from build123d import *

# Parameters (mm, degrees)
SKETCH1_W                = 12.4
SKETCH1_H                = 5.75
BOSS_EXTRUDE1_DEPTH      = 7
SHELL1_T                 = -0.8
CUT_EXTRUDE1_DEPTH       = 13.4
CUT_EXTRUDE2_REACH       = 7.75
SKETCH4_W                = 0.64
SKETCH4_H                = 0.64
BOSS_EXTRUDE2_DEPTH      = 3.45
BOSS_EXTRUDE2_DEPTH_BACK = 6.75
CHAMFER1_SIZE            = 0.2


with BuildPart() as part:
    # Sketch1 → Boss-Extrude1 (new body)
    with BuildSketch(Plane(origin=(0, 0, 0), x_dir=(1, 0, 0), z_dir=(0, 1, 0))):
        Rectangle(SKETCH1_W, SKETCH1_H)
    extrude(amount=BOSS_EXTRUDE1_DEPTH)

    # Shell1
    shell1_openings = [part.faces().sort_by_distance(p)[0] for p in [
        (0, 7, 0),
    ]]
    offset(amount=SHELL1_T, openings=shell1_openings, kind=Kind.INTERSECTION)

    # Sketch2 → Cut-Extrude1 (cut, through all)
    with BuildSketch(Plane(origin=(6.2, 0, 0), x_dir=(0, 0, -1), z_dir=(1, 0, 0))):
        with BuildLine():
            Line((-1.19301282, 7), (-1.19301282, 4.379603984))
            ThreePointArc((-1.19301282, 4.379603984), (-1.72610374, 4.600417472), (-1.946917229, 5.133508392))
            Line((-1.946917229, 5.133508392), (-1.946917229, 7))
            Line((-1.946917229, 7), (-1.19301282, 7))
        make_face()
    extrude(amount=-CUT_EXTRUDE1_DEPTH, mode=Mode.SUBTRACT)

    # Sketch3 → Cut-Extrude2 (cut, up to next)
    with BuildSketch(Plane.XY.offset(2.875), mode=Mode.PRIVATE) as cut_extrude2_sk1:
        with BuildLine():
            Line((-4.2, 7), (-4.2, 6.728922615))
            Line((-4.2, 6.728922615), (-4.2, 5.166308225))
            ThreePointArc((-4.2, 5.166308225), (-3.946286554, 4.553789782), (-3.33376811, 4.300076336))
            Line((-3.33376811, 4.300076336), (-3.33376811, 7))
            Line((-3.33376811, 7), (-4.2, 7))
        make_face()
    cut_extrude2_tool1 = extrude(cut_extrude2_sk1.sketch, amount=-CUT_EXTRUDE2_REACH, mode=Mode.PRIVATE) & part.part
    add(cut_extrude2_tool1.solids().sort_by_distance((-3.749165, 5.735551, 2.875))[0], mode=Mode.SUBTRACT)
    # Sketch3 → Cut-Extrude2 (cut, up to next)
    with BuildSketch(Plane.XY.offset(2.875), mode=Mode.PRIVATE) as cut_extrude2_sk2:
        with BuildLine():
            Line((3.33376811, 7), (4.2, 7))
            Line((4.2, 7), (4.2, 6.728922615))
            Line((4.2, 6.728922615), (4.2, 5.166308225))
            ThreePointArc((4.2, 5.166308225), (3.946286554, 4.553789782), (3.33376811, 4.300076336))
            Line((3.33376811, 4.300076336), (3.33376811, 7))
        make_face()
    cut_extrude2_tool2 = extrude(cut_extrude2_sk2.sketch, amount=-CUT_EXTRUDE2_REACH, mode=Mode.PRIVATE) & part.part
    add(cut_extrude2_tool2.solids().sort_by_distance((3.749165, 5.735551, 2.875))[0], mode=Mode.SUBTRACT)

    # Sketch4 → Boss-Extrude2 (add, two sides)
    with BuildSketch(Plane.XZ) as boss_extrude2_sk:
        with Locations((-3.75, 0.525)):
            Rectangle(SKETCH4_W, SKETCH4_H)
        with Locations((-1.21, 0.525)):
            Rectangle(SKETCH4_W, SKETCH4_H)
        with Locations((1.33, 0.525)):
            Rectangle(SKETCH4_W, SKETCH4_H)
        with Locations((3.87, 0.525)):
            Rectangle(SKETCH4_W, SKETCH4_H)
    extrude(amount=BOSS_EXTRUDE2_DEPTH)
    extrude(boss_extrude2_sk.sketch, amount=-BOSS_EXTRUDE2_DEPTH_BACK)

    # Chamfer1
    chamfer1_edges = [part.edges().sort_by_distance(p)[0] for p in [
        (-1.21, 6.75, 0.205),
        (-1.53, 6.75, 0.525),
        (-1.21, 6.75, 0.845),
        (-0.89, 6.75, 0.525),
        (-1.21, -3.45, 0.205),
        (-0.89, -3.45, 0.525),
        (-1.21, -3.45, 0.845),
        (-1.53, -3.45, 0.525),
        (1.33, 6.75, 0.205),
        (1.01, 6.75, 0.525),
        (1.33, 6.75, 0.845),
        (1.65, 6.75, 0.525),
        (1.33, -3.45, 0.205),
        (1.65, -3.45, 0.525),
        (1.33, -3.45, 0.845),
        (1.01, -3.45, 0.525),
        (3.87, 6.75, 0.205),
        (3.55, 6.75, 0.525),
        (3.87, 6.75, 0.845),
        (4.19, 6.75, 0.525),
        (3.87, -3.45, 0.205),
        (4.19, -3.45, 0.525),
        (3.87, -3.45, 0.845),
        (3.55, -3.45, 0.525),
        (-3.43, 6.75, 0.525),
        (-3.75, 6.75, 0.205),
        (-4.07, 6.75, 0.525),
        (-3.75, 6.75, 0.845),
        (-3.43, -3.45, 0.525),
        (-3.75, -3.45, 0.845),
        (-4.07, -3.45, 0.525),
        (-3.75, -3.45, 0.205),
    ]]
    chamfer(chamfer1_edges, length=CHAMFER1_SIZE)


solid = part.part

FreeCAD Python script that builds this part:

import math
import FreeCAD as App
import Part
import Sketcher
Q = App.Units.Quantity


def edges_at(feature, points):
    """Names of the edges that pass closest to the given points."""
    edges = feature.Shape.Edges
    near = lambda p: min(range(len(edges)), key=lambda i: edges[i].distToShape(Part.Vertex(*p))[0])
    return sorted({f"Edge{near(p) + 1}" for p in points})


def faces_at(feature, points):
    """Names of the faces that lie closest to the given points."""
    faces = feature.Shape.Faces
    near = lambda p: min(range(len(faces)), key=lambda i: faces[i].distToShape(Part.Vertex(*p))[0])
    return sorted({f"Face{near(p) + 1}" for p in points})

doc = App.newDocument("Part")
body = doc.addObject("PartDesign::Body", "Body")

sketch1 = body.newObject("Sketcher::SketchObject", "Sketch")
sketch1.AttachmentSupport = (doc.getObject("XZ_Plane"), [""])
sketch1.MapMode = "FlatFace"
sketch1.addGeometry([
    Part.LineSegment(App.Vector(-6, -3, 0), App.Vector(-6, 3, 0)),
    Part.LineSegment(App.Vector(-6, 3, 0), App.Vector(6, 3, 0)),
    Part.LineSegment(App.Vector(6, 3, 0), App.Vector(6, -3, 0)),
    Part.LineSegment(App.Vector(6, -3, 0), App.Vector(-6, -3, 0)),
], False)
sketch1.addConstraint([
    Sketcher.Constraint("Coincident", 0, 2, 1, 1),
    Sketcher.Constraint("Coincident", 1, 2, 2, 1),
    Sketcher.Constraint("Coincident", 2, 2, 3, 1),
    Sketcher.Constraint("Coincident", 3, 2, 0, 1),
    Sketcher.Constraint("Vertical", 0),
    Sketcher.Constraint("Horizontal", 1),
    Sketcher.Constraint("Vertical", 2),
    Sketcher.Constraint("Horizontal", 3),
    Sketcher.Constraint("Symmetric", 0, 2, 2, 2, -1, 1),
    Sketcher.Constraint("DistanceX", 1, 1, 1, 2, Q("12.4 mm")),
    Sketcher.Constraint("DistanceY", 0, 1, 0, 2, Q("5.75 mm")),
])
pad1 = body.newObject("PartDesign::Pad", "Pad")
pad1.Profile = sketch1
pad1.Length = 7
pad1.Reversed = True
doc.recompute()

thickness = body.newObject("PartDesign::Thickness", "Thickness")
thickness.Base = (pad1, faces_at(pad1, [(0, 7, 0)]))
thickness.Value = 0.8
thickness.Reversed = True
thickness.Join = "Intersection"

sketch2 = body.newObject("Sketcher::SketchObject", "Sketch001")
sketch2.AttachmentSupport = (doc.getObject("YZ_Plane"), [""])
sketch2.MapMode = "FlatFace"
sketch2.AttachmentOffset = App.Placement(App.Vector(0, 0, 6.2), App.Rotation())
sketch2.addGeometry([
    Part.LineSegment(App.Vector(4.4, 1.2, 0), App.Vector(7, 1.2, 0)),
    Part.LineSegment(App.Vector(7, 1.2, 0), App.Vector(7, 1.9, 0)),
    Part.LineSegment(App.Vector(7, 1.9, 0), App.Vector(5.1, 1.9, 0)),
    Part.ArcOfCircle(Part.Circle(App.Vector(5.1, 1.2, 0), App.Vector(0, 0, 1), 0.8), math.radians(90), math.radians(180)),
], False)
sketch2.addConstraint([
    Sketcher.Constraint("Coincident", 0, 2, 1, 1),
    Sketcher.Constraint("Coincident", 1, 2, 2, 1),
    Sketcher.Constraint("Tangent", 2, 2, 3, 1),
    Sketcher.Constraint("Coincident", 3, 2, 0, 1),
    Sketcher.Constraint("Horizontal", 0),
    Sketcher.Constraint("Vertical", 1),
    Sketcher.Constraint("Horizontal", 2),
    Sketcher.Constraint("Horizontal", 3, 3, 0, 2),
    Sketcher.Constraint("DistanceX", -1, 1, 0, 2, Q("7 mm")),
    Sketcher.Constraint("Radius", 3, Q("0.753904 mm")),
    Sketcher.Constraint("DistanceX", 2, 2, 2, 1, Q("1.866492 mm")),
    Sketcher.Constraint("DistanceY", -1, 1, 3, 3, Q("1.193013 mm")),
])
pocket1 = body.newObject("PartDesign::Pocket", "Pocket")
pocket1.Profile = sketch2
pocket1.Type = "ThroughAll"

sketch3 = body.newObject("Sketcher::SketchObject", "Sketch002")
sketch3.AttachmentSupport = (doc.getObject("XY_Plane"), [""])
sketch3.MapMode = "FlatFace"
sketch3.AttachmentOffset = App.Placement(App.Vector(0, 0, 2.875), App.Rotation())
sketch3.addGeometry([
    Part.LineSegment(App.Vector(-4.2, 7, 0), App.Vector(-4.2, 5.2, 0)),
    Part.ArcOfCircle(Part.Circle(App.Vector(-3.3, 5.2, 0), App.Vector(0, 0, 1), 0.9), math.radians(180), math.radians(270)),
    Part.LineSegment(App.Vector(-3.3, 4.3, 0), App.Vector(-3.3, 7, 0)),
    Part.LineSegment(App.Vector(-3.3, 7, 0), App.Vector(-4.2, 7, 0)),
], False)
sketch3.addConstraint([
    Sketcher.Constraint("Tangent", 0, 2, 1, 1),
    Sketcher.Constraint("Coincident", 1, 2, 2, 1),
    Sketcher.Constraint("Coincident", 2, 2, 3, 1),
    Sketcher.Constraint("Coincident", 3, 2, 0, 1),
    Sketcher.Constraint("Vertical", 0),
    Sketcher.Constraint("Vertical", 2),
    Sketcher.Constraint("Horizontal", 3),
    Sketcher.Constraint("DistanceY", -1, 1, 2, 2, Q("7 mm")),
    Sketcher.Constraint("DistanceX", 0, 2, -1, 1, Q("4.2 mm")),
    Sketcher.Constraint("Radius", 1, Q("0.866232 mm")),
    Sketcher.Constraint("DistanceX", 3, 2, 3, 1, Q("0.866232 mm")),
    Sketcher.Constraint("DistanceY", 0, 2, 0, 1, Q("1.833692 mm")),
])
pocket2 = body.newObject("PartDesign::Pocket", "Pocket001")
pocket2.Profile = sketch3
pocket2.Type = "UpToFirst"

sketch4 = body.newObject("Sketcher::SketchObject", "Sketch003")
sketch4.AttachmentSupport = (doc.getObject("XY_Plane"), [""])
sketch4.MapMode = "FlatFace"
sketch4.AttachmentOffset = App.Placement(App.Vector(0, 0, 2.875), App.Rotation())
sketch4.addGeometry([
    Part.LineSegment(App.Vector(4.2, 7, 0), App.Vector(3.3, 7, 0)),
    Part.LineSegment(App.Vector(3.3, 7, 0), App.Vector(3.3, 4.3, 0)),
    Part.ArcOfCircle(Part.Circle(App.Vector(3.3, 5.2, 0), App.Vector(0, 0, 1), 0.9), math.radians(-90), math.radians(0)),
    Part.LineSegment(App.Vector(4.2, 5.2, 0), App.Vector(4.2, 7, 0)),
], False)
sketch4.addConstraint([
    Sketcher.Constraint("Coincident", 0, 2, 1, 1),
    Sketcher.Constraint("Coincident", 1, 2, 2, 1),
    Sketcher.Constraint("Tangent", 2, 2, 3, 1),
    Sketcher.Constraint("Coincident", 3, 2, 0, 1),
    Sketcher.Constraint("Horizontal", 0),
    Sketcher.Constraint("Vertical", 1),
    Sketcher.Constraint("Vertical", 3),
    Sketcher.Constraint("Vertical", 2, 3, 0, 2),
    Sketcher.Constraint("DistanceY", -1, 1, 0, 2, Q("7 mm")),
    Sketcher.Constraint("DistanceX", -1, 1, 2, 2, Q("4.2 mm")),
    Sketcher.Constraint("Radius", 2, Q("0.866232 mm")),
    Sketcher.Constraint("DistanceY", 3, 1, 3, 2, Q("1.833692 mm")),
])
pocket3 = body.newObject("PartDesign::Pocket", "Pocket002")
pocket3.Profile = sketch4
pocket3.Type = "UpToFirst"

sketch5 = body.newObject("Sketcher::SketchObject", "Sketch004")
sketch5.AttachmentSupport = (doc.getObject("XZ_Plane"), [""])
sketch5.MapMode = "FlatFace"
sketch5.addGeometry([
    Part.LineSegment(App.Vector(-4.1, 0.8, 0), App.Vector(-4.1, 0.2, 0)),
    Part.LineSegment(App.Vector(-4.1, 0.2, 0), App.Vector(-3.4, 0.2, 0)),
    Part.LineSegment(App.Vector(-3.4, 0.2, 0), App.Vector(-3.4, 0.8, 0)),
    Part.LineSegment(App.Vector(-3.4, 0.8, 0), App.Vector(-4.1, 0.8, 0)),
    Part.LineSegment(App.Vector(-1.5, 0.8, 0), App.Vector(-1.5, 0.2, 0)),
    Part.LineSegment(App.Vector(-1.5, 0.2, 0), App.Vector(-0.9, 0.2, 0)),
    Part.LineSegment(App.Vector(-0.9, 0.2, 0), App.Vector(-0.9, 0.8, 0)),
    Part.LineSegment(App.Vector(-0.9, 0.8, 0), App.Vector(-1.5, 0.8, 0)),
    Part.LineSegment(App.Vector(1, 0.8, 0), App.Vector(1, 0.2, 0)),
    Part.LineSegment(App.Vector(1, 0.2, 0), App.Vector(1.6, 0.2, 0)),
    Part.LineSegment(App.Vector(1.6, 0.2, 0), App.Vector(1.6, 0.8, 0)),
    Part.LineSegment(App.Vector(1.6, 0.8, 0), App.Vector(1, 0.8, 0)),
    Part.LineSegment(App.Vector(3.5, 0.8, 0), App.Vector(3.5, 0.2, 0)),
    Part.LineSegment(App.Vector(3.5, 0.2, 0), App.Vector(4.2, 0.2, 0)),
    Part.LineSegment(App.Vector(4.2, 0.2, 0), App.Vector(4.2, 0.8, 0)),
    Part.LineSegment(App.Vector(4.2, 0.8, 0), App.Vector(3.5, 0.8, 0)),
], False)
sketch5.addConstraint([
    Sketcher.Constraint("Coincident", 0, 2, 1, 1),
    Sketcher.Constraint("Coincident", 1, 2, 2, 1),
    Sketcher.Constraint("Coincident", 2, 2, 3, 1),
    Sketcher.Constraint("Coincident", 3, 2, 0, 1),
    Sketcher.Constraint("Coincident", 4, 2, 5, 1),
    Sketcher.Constraint("Coincident", 5, 2, 6, 1),
    Sketcher.Constraint("Coincident", 6, 2, 7, 1),
    Sketcher.Constraint("Coincident", 7, 2, 4, 1),
    Sketcher.Constraint("Coincident", 8, 2, 9, 1),
    Sketcher.Constraint("Coincident", 9, 2, 10, 1),
    Sketcher.Constraint("Coincident", 10, 2, 11, 1),
    Sketcher.Constraint("Coincident", 11, 2, 8, 1),
    Sketcher.Constraint("Coincident", 12, 2, 13, 1),
    Sketcher.Constraint("Coincident", 13, 2, 14, 1),
    Sketcher.Constraint("Coincident", 14, 2, 15, 1),
    Sketcher.Constraint("Coincident", 15, 2, 12, 1),
    Sketcher.Constraint("Vertical", 0),
    Sketcher.Constraint("Horizontal", 1),
    Sketcher.Constraint("Vertical", 2),
    Sketcher.Constraint("Horizontal", 3),
    Sketcher.Constraint("Vertical", 4),
    Sketcher.Constraint("Horizontal", 5),
    Sketcher.Constraint("Vertical", 6),
    Sketcher.Constraint("Horizontal", 7),
    Sketcher.Constraint("Vertical", 8),
    Sketcher.Constraint("Horizontal", 9),
    Sketcher.Constraint("Vertical", 10),
    Sketcher.Constraint("Horizontal", 11),
    Sketcher.Constraint("Vertical", 12),
    Sketcher.Constraint("Horizontal", 13),
    Sketcher.Constraint("Vertical", 14),
    Sketcher.Constraint("Horizontal", 15),
    Sketcher.Constraint("Horizontal", 1, 2, 4, 2),
    Sketcher.Constraint("Horizontal", 3, 2, 6, 2),
    Sketcher.Constraint("Horizontal", 5, 2, 8, 2),
    Sketcher.Constraint("Horizontal", 7, 2, 10, 2),
    Sketcher.Constraint("Horizontal", 9, 2, 12, 2),
    Sketcher.Constraint("Horizontal", 11, 2, 14, 2),
    Sketcher.Constraint("Equal", 3, 5),
    Sketcher.Constraint("Equal", 7, 9),
    Sketcher.Constraint("Equal", 11, 13),
    Sketcher.Constraint("Equal", 15, 0),
    Sketcher.Constraint("DistanceX", 1, 1, 1, 2, Q("0.64 mm")),
    Sketcher.Constraint("DistanceX", 1, 2, 4, 2, Q("1.9 mm")),
    Sketcher.Constraint("DistanceX", 5, 2, 8, 2, Q("1.9 mm")),
    Sketcher.Constraint("DistanceX", 9, 2, 12, 2, Q("1.9 mm")),
    Sketcher.Constraint("DistanceX", 0, 2, -1, 1, Q("4.07 mm")),
    Sketcher.Constraint("DistanceY", -1, 1, 0, 2, Q("0.205 mm")),
])
pad2 = body.newObject("PartDesign::Pad", "Pad001")
pad2.Profile = sketch5
pad2.Type = "TwoLengths"
pad2.Length = 3.45
pad2.Length2 = 6.75
doc.recompute()

chamfer = body.newObject("PartDesign::Chamfer", "Chamfer")
chamfer.Base = (pad2, edges_at(pad2, [
    (-1.21, 6.75, 0.205),
    (-1.53, 6.75, 0.525),
    (-1.21, 6.75, 0.845),
    (-0.89, 6.75, 0.525),
    (-1.21, -3.45, 0.205),
    (-0.89, -3.45, 0.525),
    (-1.21, -3.45, 0.845),
    (-1.53, -3.45, 0.525),
    (1.33, 6.75, 0.205),
    (1.01, 6.75, 0.525),
    (1.33, 6.75, 0.845),
    (1.65, 6.75, 0.525),
    (1.33, -3.45, 0.205),
    (1.65, -3.45, 0.525),
    (1.33, -3.45, 0.845),
    (1.01, -3.45, 0.525),
    (3.87, 6.75, 0.205),
    (3.55, 6.75, 0.525),
    (3.87, 6.75, 0.845),
    (4.19, 6.75, 0.525),
    (3.87, -3.45, 0.205),
    (4.19, -3.45, 0.525),
    (3.87, -3.45, 0.845),
    (3.55, -3.45, 0.525),
    (-3.43, 6.75, 0.525),
    (-3.75, 6.75, 0.205),
    (-4.07, 6.75, 0.525),
    (-3.75, 6.75, 0.845),
    (-3.43, -3.45, 0.525),
    (-3.75, -3.45, 0.845),
    (-4.07, -3.45, 0.525),
    (-3.75, -3.45, 0.205),
]))
chamfer.Size = 0.2

doc.recompute()
